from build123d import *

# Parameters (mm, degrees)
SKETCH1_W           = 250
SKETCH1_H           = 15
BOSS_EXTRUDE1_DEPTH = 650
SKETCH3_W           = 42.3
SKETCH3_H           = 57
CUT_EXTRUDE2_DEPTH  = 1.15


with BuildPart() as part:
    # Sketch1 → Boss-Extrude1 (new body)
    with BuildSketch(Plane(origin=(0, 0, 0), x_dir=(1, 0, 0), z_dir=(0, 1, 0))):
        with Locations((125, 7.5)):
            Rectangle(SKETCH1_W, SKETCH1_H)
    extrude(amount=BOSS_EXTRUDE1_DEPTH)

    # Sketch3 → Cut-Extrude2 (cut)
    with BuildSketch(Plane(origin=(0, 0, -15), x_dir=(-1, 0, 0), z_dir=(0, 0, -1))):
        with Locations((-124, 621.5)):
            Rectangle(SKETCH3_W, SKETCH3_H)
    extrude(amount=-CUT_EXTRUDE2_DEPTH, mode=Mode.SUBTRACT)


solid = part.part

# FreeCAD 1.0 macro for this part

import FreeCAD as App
import Part
import Sketcher

V = App.Vector


def add_polygon(sketch, points):
    """Adds a closed chain of lines whose ends are joined by coincident constraints."""
    first, n = sketch.GeometryCount, len(points)
    for a, b in zip(points, points[1:] + points[:1]):
        sketch.addGeometry(Part.LineSegment(App.Vector(*a, 0), App.Vector(*b, 0)), False)
    for i in range(n):
        sketch.addConstraint(Sketcher.Constraint("Coincident", first + i, 2, first + (i + 1) % n, 1))

doc = App.newDocument("Part")
params = doc.addObject("Spreadsheet::Sheet", "Params")
for row, (alias, value) in enumerate([
    ("sketch1_width", "250 mm"),
    ("sketch1_height", "15 mm"),
    ("pad1_length", "650 mm"),
    ("sketch2_height", "57 mm"),
    ("sketch2_width", "42.3 mm"),
    ("pocket1_length", "1.15 mm"),
], start=1):
    params.set(f"A{row}", alias)
    params.set(f"B{row}", "=" + value)
    params.setAlias(f"B{row}", alias)

body = doc.addObject("PartDesign::Body", "Body")

sketch1 = doc.addObject("Sketcher::SketchObject", "Sketch")
body.addObject(sketch1)
sketch1.AttachmentSupport = (doc.XZ_Plane, [""])
sketch1.MapMode = "FlatFace"
add_polygon(sketch1, [(0, -15), (0, 0), (250, 0), (250, -15)])
sketch1.addConstraint([
    Sketcher.Constraint("Vertical", 0),
    Sketcher.Constraint("Horizontal", 1),
    Sketcher.Constraint("Vertical", 2),
    Sketcher.Constraint("Horizontal", 3),
    Sketcher.Constraint("Coincident", 0, 2, -1, 1),
    Sketcher.Constraint("DistanceX", 1, 1, 1, 2, 250.0),
    Sketcher.Constraint("DistanceY", 0, 1, 0, 2, 15.0),
])
sketch1.setExpression("Constraints[9]", "Params.sketch1_width")
sketch1.setExpression("Constraints[10]", "Params.sketch1_height")
pad1 = doc.addObject("PartDesign::Pad", "Pad")
body.addObject(pad1)
pad1.Profile = sketch1
pad1.setExpression("Length", "Params.pad1_length")
pad1.Reversed = True

sketch2 = doc.addObject("Sketcher::SketchObject", "Sketch001")
body.addObject(sketch2)
sketch2.AttachmentSupport = (doc.XY_Plane, [""])
sketch2.MapMode = "FlatFace"
sketch2.AttachmentOffset = App.Placement(V(0, 0, -15), App.Rotation())
add_polygon(sketch2, [(145, 650), (145, 593), (103, 593), (103, 650)])
sketch2.addConstraint([
    Sketcher.Constraint("Vertical", 0),
    Sketcher.Constraint("Horizontal", 1),
    Sketcher.Constraint("Vertical", 2),
    Sketcher.Constraint("Horizontal", 3),
    Sketcher.Constraint("DistanceY", 0, 2, 0, 1, 57.0),
    Sketcher.Constraint("DistanceX", 1, 2, 1, 1, 42.3),
    Sketcher.Constraint("DistanceY", -1, 1, 0, 2, 593.0),
    Sketcher.Constraint("DistanceX", -1, 1, 0, 2, 145.15),
])
sketch2.setExpression("Constraints[8]", "Params.sketch2_height")
sketch2.setExpression("Constraints[9]", "Params.sketch2_width")
pocket1 = doc.addObject("PartDesign::Pocket", "Pocket")
body.addObject(pocket1)
pocket1.Profile = sketch2
pocket1.setExpression("Length", "Params.pocket1_length")
pocket1.Reversed = True

doc.recompute()
